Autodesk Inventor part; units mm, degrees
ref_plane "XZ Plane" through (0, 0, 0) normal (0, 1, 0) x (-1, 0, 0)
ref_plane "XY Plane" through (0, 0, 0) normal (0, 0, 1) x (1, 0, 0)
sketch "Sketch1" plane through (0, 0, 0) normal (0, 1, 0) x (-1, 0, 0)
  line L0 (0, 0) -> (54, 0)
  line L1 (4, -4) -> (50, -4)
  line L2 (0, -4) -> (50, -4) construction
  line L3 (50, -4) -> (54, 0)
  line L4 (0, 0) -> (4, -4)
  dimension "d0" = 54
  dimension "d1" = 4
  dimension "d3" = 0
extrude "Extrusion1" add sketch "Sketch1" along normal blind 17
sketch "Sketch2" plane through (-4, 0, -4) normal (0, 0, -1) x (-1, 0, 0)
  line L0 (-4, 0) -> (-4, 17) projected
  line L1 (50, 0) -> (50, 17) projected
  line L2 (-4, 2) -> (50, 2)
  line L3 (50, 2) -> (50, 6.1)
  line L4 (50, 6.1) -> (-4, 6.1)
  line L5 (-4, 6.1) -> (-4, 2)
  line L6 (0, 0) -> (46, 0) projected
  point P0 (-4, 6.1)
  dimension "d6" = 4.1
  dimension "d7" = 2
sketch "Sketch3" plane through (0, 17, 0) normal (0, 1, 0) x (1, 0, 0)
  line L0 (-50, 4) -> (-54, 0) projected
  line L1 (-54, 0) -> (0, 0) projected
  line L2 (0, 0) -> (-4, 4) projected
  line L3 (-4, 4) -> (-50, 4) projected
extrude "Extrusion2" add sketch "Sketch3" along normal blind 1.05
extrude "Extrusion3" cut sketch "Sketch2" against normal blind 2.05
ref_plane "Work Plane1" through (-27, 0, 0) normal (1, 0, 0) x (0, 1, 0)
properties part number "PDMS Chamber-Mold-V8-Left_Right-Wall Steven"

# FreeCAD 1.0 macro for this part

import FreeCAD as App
import Part
import Sketcher
Q = App.Units.Quantity


def add_polygon(sketch, points):
    """Adds a closed chain of lines whose ends are joined by coincident constraints."""
    first, n = sketch.GeometryCount, len(points)
    for a, b in zip(points, points[1:] + points[:1]):
        sketch.addGeometry(Part.LineSegment(App.Vector(*a, 0), App.Vector(*b, 0)), False)
    for i in range(n):
        sketch.addConstraint(Sketcher.Constraint("Coincident", first + i, 2, first + (i + 1) % n, 1))

doc = App.newDocument("Part")
body = doc.addObject("PartDesign::Body", "Body")

sketch1 = body.newObject("Sketcher::SketchObject", "Sketch")
sketch1.AttachmentSupport = (doc.getObject("XZ_Plane"), [""])
sketch1.MapMode = "FlatFace"
add_polygon(sketch1, [(-54, 0), (0, 0), (-4, -4), (-50, -4)])
sketch1.addConstraint([
    Sketcher.Constraint("Horizontal", 0),
    Sketcher.Constraint("Horizontal", 2),
    Sketcher.Constraint("Coincident", 0, 2, -1, 1),
    Sketcher.Constraint("Perpendicular", 1, 3),
    Sketcher.Constraint("Equal", 1, 3),
    Sketcher.Constraint("DistanceX", 0, 1, 0, 2, Q("54 mm")),
    Sketcher.Constraint("DistanceX", 1, 2, -1, 1, Q("4 mm")),
])
pad1 = body.newObject("PartDesign::Pad", "Pad")
pad1.Profile = sketch1
pad1.Length = 17
pad1.Reversed = True

sketch2 = body.newObject("Sketcher::SketchObject", "Sketch001")
sketch2.AttachmentSupport = (doc.getObject("XZ_Plane"), [""])
sketch2.MapMode = "FlatFace"
sketch2.AttachmentOffset = App.Placement(App.Vector(0, 0, -17), App.Rotation())
add_polygon(sketch2, [(-4, -4), (-50, -4), (-54, 0), (0, 0)])
sketch2.addConstraint([
    Sketcher.Constraint("Horizontal", 0),
    Sketcher.Constraint("Horizontal", 2),
    Sketcher.Constraint("Coincident", 2, 2, -1, 1),
    Sketcher.Constraint("Perpendicular", 1, 3),
    Sketcher.Constraint("Equal", 1, 3),
    Sketcher.Constraint("DistanceX", 0, 2, 0, 1, Q("46 mm")),
    Sketcher.Constraint("DistanceX", 2, 1, 2, 2, Q("54 mm")),
])
pad2 = body.newObject("PartDesign::Pad", "Pad001")
pad2.Profile = sketch2
pad2.Length = 1.05
pad2.Reversed = True

sketch3 = body.newObject("Sketcher::SketchObject", "Sketch002")
sketch3.AttachmentSupport = (doc.getObject("XY_Plane"), [""])
sketch3.MapMode = "FlatFace"
sketch3.AttachmentOffset = App.Placement(App.Vector(0, 0, -4), App.Rotation())
add_polygon(sketch3, [(0, 6.1), (0, 2), (-54, 2), (-54, 6.1)])
sketch3.addConstraint([
    Sketcher.Constraint("Vertical", 0),
    Sketcher.Constraint("Horizontal", 1),
    Sketcher.Constraint("Vertical", 2),
    Sketcher.Constraint("Horizontal", 3),
    Sketcher.Constraint("PointOnObject", 0, 2, -2),
    Sketcher.Constraint("DistanceY", 0, 2, 0, 1, Q("4.1 mm")),
    Sketcher.Constraint("DistanceY", -1, 1, 0, 2, Q("2 mm")),
    Sketcher.Constraint("DistanceX", 1, 2, 1, 1, Q("54 mm")),
])
pocket1 = body.newObject("PartDesign::Pocket", "Pocket")
pocket1.Profile = sketch3
pocket1.Length = 2.05
pocket1.Reversed = True

doc.recompute()
